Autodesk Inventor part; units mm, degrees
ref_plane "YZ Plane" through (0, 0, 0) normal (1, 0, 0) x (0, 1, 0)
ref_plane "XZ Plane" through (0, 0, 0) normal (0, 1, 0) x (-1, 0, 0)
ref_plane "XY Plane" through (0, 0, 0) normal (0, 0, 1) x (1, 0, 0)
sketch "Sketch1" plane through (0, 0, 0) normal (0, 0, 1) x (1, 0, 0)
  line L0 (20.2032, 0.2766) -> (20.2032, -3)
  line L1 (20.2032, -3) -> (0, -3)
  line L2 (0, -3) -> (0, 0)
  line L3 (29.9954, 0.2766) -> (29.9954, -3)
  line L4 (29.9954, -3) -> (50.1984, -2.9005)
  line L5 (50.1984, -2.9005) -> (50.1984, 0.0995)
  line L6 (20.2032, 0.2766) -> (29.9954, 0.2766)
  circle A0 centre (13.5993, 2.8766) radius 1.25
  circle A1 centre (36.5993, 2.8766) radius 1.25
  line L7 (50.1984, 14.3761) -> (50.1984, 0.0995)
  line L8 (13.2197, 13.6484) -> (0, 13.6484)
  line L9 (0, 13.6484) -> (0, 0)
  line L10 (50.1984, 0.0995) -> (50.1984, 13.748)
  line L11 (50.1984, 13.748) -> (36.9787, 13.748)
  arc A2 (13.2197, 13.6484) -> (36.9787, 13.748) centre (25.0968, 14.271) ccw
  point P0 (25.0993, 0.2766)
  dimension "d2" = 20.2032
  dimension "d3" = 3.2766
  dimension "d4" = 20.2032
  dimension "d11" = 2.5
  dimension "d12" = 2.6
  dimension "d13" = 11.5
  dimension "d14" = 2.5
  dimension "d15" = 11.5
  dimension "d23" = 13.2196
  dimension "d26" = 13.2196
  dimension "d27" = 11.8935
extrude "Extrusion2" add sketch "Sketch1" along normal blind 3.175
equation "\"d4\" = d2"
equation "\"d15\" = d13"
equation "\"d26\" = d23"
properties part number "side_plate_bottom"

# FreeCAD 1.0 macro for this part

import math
import FreeCAD as App
import Part
import Sketcher

V = App.Vector
Q = App.Units.Quantity

doc = App.newDocument("Part")
body = doc.addObject("PartDesign::Body", "Body")

# Sketch on XY plane
sketch1 = body.newObject("Sketcher::SketchObject", "Sketch")
sketch1.AttachmentSupport = (doc.getObject("XY_Plane"), [""])
sketch1.MapMode = "FlatFace"
sketch1.addGeometry(Part.LineSegment(V(20.2, -3, 0), V(20.2, 0.3, 0)), False)
sketch1.addGeometry(Part.LineSegment(V(20.2, 0.3, 0), V(30, 0.3, 0)), False)
sketch1.addGeometry(Part.LineSegment(V(30, 0.3, 0), V(30, -3, 0)), False)
sketch1.addGeometry(Part.LineSegment(V(30, -3, 0), V(50.2, -2.9, 0)), False)
sketch1.addGeometry(Part.LineSegment(V(50.2, -2.9, 0), V(50.2, 13.7, 0)), False)
sketch1.addGeometry(Part.LineSegment(V(50.2, 13.7, 0), V(37, 13.7, 0)), False)
sketch1.addGeometry(Part.ArcOfCircle(Part.Circle(V(25.1, 14.3, 0), V(0, 0, 1), 11.9), math.radians(-177), math.radians(-3)), False)
sketch1.addGeometry(Part.LineSegment(V(13.2, 13.6, 0), V(0, 13.6, 0)), False)
sketch1.addGeometry(Part.LineSegment(V(0, 13.6, 0), V(0, -3, 0)), False)
sketch1.addGeometry(Part.LineSegment(V(0, -3, 0), V(20.2, -3, 0)), False)
sketch1.addGeometry(Part.Circle(V(13.6, 2.9, 0), V(0, 0, 1), 1.2), False)
sketch1.addGeometry(Part.Circle(V(36.6, 2.9, 0), V(0, 0, 1), 1.2), False)
sketch1.addConstraint(Sketcher.Constraint("Coincident", 0, 2, 1, 1))
sketch1.addConstraint(Sketcher.Constraint("Coincident", 1, 2, 2, 1))
sketch1.addConstraint(Sketcher.Constraint("Coincident", 2, 2, 3, 1))
sketch1.addConstraint(Sketcher.Constraint("Coincident", 3, 2, 4, 1))
sketch1.addConstraint(Sketcher.Constraint("Coincident", 4, 2, 5, 1))
sketch1.addConstraint(Sketcher.Constraint("Coincident", 5, 2, 6, 2))
sketch1.addConstraint(Sketcher.Constraint("Coincident", 6, 1, 7, 1))
sketch1.addConstraint(Sketcher.Constraint("Coincident", 7, 2, 8, 1))
sketch1.addConstraint(Sketcher.Constraint("Coincident", 8, 2, 9, 1))
sketch1.addConstraint(Sketcher.Constraint("Coincident", 9, 2, 0, 1))
sketch1.addConstraint(Sketcher.Constraint("Vertical", 0))
sketch1.addConstraint(Sketcher.Constraint("Horizontal", 1))
sketch1.addConstraint(Sketcher.Constraint("Vertical", 2))
sketch1.addConstraint(Sketcher.Constraint("Vertical", 4))
sketch1.addConstraint(Sketcher.Constraint("Horizontal", 5))
sketch1.addConstraint(Sketcher.Constraint("Horizontal", 7))
sketch1.addConstraint(Sketcher.Constraint("Vertical", 8))
sketch1.addConstraint(Sketcher.Constraint("Horizontal", 9))
sketch1.addConstraint(Sketcher.Constraint("Equal", 10, 11))
sketch1.addConstraint(Sketcher.Constraint("PointOnObject", 7, 2, -2))
sketch1.addConstraint(Sketcher.Constraint("Horizontal", 10, 3, 11, 3))
sketch1.addConstraint(Sketcher.Constraint("Horizontal", 2, 2, 8, 2))
sketch1.addConstraint(Sketcher.Constraint("Equal", 5, 7))
sketch1.addConstraint(Sketcher.Constraint("Equal", 4, 8))
sketch1.addConstraint(Sketcher.Constraint("Diameter", 10, 2.5))
sketch1.addConstraint(Sketcher.Constraint("DistanceY", 0, 1, 0, 2, Q("0.129 in")))
sketch1.addConstraint(Sketcher.Constraint("Radius", 6, 11.8934))
sketch1.addConstraint(Sketcher.Constraint("DistanceX", 9, 1, 9, 2, Q("0.7954 in")))
sketch1.addConstraint(Sketcher.Constraint("Distance", 3, Q("0.7954 in")))
sketch1.addConstraint(Sketcher.Constraint("DistanceX", 5, 2, 5, 1, 13.2197))
sketch1.addConstraint(Sketcher.Constraint("DistanceX", 10, 3, 0, 2, Q("0.26 in")))
sketch1.addConstraint(Sketcher.Constraint("DistanceY", 0, 2, 10, 3, 2.6))
sketch1.addConstraint(Sketcher.Constraint("DistanceX", 1, 2, 11, 3, Q("0.26 in")))
sketch1.addConstraint(Sketcher.Constraint("DistanceY", 11, 3, 4, 2, Q("0.428 in")))
sketch1.addConstraint(Sketcher.Constraint("DistanceX", 1, 1, 1, 2, 9.7922))
sketch1.addConstraint(Sketcher.Constraint("DistanceY", 4, 1, 4, 2, 16.6485))
sketch1.addConstraint(Sketcher.Constraint("DistanceY", -1, 1, 0, 2, Q("0.0109 in")))
pad1 = body.newObject("PartDesign::Pad", "Pad")
pad1.Profile = sketch1
pad1.Length = Q("0.125 in")

doc.recompute()
